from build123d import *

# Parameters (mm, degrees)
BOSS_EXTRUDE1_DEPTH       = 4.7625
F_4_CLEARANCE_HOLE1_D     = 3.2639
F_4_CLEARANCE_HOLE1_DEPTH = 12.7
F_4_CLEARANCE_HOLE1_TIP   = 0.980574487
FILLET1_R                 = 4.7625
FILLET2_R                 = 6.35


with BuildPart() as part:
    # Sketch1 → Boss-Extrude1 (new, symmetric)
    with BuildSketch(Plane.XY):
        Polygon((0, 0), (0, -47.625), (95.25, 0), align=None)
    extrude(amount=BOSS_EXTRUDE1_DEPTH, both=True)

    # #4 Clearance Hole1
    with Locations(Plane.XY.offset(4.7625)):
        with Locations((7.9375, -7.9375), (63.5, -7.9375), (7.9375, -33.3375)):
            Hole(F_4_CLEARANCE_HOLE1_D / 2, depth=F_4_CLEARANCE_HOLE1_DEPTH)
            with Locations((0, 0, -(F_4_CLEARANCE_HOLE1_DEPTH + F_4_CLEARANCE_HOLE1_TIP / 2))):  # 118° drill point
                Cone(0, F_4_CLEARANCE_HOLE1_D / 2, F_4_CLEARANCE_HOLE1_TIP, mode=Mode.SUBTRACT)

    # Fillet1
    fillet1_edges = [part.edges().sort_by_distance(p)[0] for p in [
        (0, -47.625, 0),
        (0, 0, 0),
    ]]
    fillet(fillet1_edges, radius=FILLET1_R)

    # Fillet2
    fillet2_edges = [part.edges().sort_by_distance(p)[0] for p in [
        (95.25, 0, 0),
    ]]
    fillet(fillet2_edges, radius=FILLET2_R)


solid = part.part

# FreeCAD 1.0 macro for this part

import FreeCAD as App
import Part
import Sketcher
from FreeCAD import Vector
Q = App.Units.Quantity


def edges_at(feature, points):
    """Names of the edges that pass closest to the given points."""
    edges = feature.Shape.Edges
    near = lambda p: min(range(len(edges)), key=lambda i: edges[i].distToShape(Part.Vertex(*p))[0])
    return sorted({f"Edge{near(p) + 1}" for p in points})


def add_polygon(sketch, points):
    """Adds a closed chain of lines whose ends are joined by coincident constraints."""
    first, n = sketch.GeometryCount, len(points)
    for a, b in zip(points, points[1:] + points[:1]):
        sketch.addGeometry(Part.LineSegment(App.Vector(*a, 0), App.Vector(*b, 0)), False)
    for i in range(n):
        sketch.addConstraint(Sketcher.Constraint("Coincident", first + i, 2, first + (i + 1) % n, 1))

doc = App.newDocument("Part")
params = doc.addObject("Spreadsheet::Sheet", "Params")
for row, (alias, value) in enumerate([
    ("sketch1_width", "3.75 in"),
    ("sketch1_height", "1.875 in"),
    ("pad1_length", "0.375 in"),
    ("hole_diameter", "0.1285 in"),
    ("hole_depth", "0.5 in"),
    ("fillet_radius", "0.1875 in"),
    ("fillet2_radius", "0.25 in"),
], start=1):
    params.set(f"A{row}", alias)
    params.set(f"B{row}", "=" + value)
    params.setAlias(f"B{row}", alias)

body = doc.addObject("PartDesign::Body", "Body")

sketch1 = doc.addObject("Sketcher::SketchObject", "Sketch")
body.addObject(sketch1)
sketch1.AttachmentSupport = (doc.XY_Plane, [""])
sketch1.MapMode = "FlatFace"
add_polygon(sketch1, [(0, 0), (0, -48), (95, 0)])
sketch1.addConstraint([
    Sketcher.Constraint("Vertical", 0),
    Sketcher.Constraint("Horizontal", 2),
    Sketcher.Constraint("Coincident", 2, 2, -1, 1),
    Sketcher.Constraint("DistanceX", 2, 2, 2, 1, Q("3.75 in")),
    Sketcher.Constraint("DistanceY", 0, 2, 0, 1, Q("1.875 in")),
])
sketch1.setExpression("Constraints[6]", "Params.sketch1_width")
sketch1.setExpression("Constraints[7]", "Params.sketch1_height")
pad1 = doc.addObject("PartDesign::Pad", "Pad")
body.addObject(pad1)
pad1.Profile = sketch1
pad1.setExpression("Length", "Params.pad1_length")
pad1.Midplane = True

sketch2 = doc.addObject("Sketcher::SketchObject", "Sketch001")
body.addObject(sketch2)
sketch2.AttachmentSupport = (doc.XY_Plane, [""])
sketch2.MapMode = "FlatFace"
sketch2.AttachmentOffset = App.Placement(Vector(0, 0, 0.1875 * 25.4), App.Rotation())
sketch2.addGeometry([
    Part.Circle(Vector(7.9, -7.9, 0), Vector(0, 0, 1), 1.6),
    Part.Circle(Vector(63.5, -7.9, 0), Vector(0, 0, 1), 1.6),
    Part.Circle(Vector(7.9, -33.3, 0), Vector(0, 0, 1), 1.6),
], False)
sketch2.addConstraint([
    Sketcher.Constraint("Equal", 0, 1),
    Sketcher.Constraint("Equal", 1, 2),
    Sketcher.Constraint("Horizontal", 0, 3, 1, 3),
    Sketcher.Constraint("Vertical", 0, 3, 2, 3),
    Sketcher.Constraint("DistanceY", 2, 3, 0, 3, Q("1 in")),
    Sketcher.Constraint("Diameter", 0, Q("0.1285 in")),
    Sketcher.Constraint("DistanceX", -1, 1, 1, 3, Q("2.5 in")),
    Sketcher.Constraint("DistanceX", -1, 1, 0, 3, Q("0.3125 in")),
    Sketcher.Constraint("DistanceY", 0, 3, -1, 1, Q("0.3125 in")),
])
doc.recompute()
hole = doc.addObject("PartDesign::Hole", "Hole")
body.addObject(hole)
hole.Profile = sketch2
hole.ThreadType = "None"
hole.setExpression("Diameter", "Params.hole_diameter")
hole.DepthType = "Dimension"
hole.setExpression("Depth", "Params.hole_depth")
hole.DrillPoint = "Angled"
hole.DrillPointAngle = 118
doc.recompute()

fillet = doc.addObject("PartDesign::Fillet", "Fillet")
body.addObject(fillet)
fillet.Base = (hole, edges_at(hole, [(0, -47.625, 0), (0, 0, 0)]))
fillet.setExpression("Radius", "Params.fillet_radius")
doc.recompute()

fillet2 = doc.addObject("PartDesign::Fillet", "Fillet001")
body.addObject(fillet2)
fillet2.Base = (fillet, edges_at(fillet, [(95.25, 0, 0)]))
fillet2.setExpression("Radius", "Params.fillet2_radius")

doc.recompute()
